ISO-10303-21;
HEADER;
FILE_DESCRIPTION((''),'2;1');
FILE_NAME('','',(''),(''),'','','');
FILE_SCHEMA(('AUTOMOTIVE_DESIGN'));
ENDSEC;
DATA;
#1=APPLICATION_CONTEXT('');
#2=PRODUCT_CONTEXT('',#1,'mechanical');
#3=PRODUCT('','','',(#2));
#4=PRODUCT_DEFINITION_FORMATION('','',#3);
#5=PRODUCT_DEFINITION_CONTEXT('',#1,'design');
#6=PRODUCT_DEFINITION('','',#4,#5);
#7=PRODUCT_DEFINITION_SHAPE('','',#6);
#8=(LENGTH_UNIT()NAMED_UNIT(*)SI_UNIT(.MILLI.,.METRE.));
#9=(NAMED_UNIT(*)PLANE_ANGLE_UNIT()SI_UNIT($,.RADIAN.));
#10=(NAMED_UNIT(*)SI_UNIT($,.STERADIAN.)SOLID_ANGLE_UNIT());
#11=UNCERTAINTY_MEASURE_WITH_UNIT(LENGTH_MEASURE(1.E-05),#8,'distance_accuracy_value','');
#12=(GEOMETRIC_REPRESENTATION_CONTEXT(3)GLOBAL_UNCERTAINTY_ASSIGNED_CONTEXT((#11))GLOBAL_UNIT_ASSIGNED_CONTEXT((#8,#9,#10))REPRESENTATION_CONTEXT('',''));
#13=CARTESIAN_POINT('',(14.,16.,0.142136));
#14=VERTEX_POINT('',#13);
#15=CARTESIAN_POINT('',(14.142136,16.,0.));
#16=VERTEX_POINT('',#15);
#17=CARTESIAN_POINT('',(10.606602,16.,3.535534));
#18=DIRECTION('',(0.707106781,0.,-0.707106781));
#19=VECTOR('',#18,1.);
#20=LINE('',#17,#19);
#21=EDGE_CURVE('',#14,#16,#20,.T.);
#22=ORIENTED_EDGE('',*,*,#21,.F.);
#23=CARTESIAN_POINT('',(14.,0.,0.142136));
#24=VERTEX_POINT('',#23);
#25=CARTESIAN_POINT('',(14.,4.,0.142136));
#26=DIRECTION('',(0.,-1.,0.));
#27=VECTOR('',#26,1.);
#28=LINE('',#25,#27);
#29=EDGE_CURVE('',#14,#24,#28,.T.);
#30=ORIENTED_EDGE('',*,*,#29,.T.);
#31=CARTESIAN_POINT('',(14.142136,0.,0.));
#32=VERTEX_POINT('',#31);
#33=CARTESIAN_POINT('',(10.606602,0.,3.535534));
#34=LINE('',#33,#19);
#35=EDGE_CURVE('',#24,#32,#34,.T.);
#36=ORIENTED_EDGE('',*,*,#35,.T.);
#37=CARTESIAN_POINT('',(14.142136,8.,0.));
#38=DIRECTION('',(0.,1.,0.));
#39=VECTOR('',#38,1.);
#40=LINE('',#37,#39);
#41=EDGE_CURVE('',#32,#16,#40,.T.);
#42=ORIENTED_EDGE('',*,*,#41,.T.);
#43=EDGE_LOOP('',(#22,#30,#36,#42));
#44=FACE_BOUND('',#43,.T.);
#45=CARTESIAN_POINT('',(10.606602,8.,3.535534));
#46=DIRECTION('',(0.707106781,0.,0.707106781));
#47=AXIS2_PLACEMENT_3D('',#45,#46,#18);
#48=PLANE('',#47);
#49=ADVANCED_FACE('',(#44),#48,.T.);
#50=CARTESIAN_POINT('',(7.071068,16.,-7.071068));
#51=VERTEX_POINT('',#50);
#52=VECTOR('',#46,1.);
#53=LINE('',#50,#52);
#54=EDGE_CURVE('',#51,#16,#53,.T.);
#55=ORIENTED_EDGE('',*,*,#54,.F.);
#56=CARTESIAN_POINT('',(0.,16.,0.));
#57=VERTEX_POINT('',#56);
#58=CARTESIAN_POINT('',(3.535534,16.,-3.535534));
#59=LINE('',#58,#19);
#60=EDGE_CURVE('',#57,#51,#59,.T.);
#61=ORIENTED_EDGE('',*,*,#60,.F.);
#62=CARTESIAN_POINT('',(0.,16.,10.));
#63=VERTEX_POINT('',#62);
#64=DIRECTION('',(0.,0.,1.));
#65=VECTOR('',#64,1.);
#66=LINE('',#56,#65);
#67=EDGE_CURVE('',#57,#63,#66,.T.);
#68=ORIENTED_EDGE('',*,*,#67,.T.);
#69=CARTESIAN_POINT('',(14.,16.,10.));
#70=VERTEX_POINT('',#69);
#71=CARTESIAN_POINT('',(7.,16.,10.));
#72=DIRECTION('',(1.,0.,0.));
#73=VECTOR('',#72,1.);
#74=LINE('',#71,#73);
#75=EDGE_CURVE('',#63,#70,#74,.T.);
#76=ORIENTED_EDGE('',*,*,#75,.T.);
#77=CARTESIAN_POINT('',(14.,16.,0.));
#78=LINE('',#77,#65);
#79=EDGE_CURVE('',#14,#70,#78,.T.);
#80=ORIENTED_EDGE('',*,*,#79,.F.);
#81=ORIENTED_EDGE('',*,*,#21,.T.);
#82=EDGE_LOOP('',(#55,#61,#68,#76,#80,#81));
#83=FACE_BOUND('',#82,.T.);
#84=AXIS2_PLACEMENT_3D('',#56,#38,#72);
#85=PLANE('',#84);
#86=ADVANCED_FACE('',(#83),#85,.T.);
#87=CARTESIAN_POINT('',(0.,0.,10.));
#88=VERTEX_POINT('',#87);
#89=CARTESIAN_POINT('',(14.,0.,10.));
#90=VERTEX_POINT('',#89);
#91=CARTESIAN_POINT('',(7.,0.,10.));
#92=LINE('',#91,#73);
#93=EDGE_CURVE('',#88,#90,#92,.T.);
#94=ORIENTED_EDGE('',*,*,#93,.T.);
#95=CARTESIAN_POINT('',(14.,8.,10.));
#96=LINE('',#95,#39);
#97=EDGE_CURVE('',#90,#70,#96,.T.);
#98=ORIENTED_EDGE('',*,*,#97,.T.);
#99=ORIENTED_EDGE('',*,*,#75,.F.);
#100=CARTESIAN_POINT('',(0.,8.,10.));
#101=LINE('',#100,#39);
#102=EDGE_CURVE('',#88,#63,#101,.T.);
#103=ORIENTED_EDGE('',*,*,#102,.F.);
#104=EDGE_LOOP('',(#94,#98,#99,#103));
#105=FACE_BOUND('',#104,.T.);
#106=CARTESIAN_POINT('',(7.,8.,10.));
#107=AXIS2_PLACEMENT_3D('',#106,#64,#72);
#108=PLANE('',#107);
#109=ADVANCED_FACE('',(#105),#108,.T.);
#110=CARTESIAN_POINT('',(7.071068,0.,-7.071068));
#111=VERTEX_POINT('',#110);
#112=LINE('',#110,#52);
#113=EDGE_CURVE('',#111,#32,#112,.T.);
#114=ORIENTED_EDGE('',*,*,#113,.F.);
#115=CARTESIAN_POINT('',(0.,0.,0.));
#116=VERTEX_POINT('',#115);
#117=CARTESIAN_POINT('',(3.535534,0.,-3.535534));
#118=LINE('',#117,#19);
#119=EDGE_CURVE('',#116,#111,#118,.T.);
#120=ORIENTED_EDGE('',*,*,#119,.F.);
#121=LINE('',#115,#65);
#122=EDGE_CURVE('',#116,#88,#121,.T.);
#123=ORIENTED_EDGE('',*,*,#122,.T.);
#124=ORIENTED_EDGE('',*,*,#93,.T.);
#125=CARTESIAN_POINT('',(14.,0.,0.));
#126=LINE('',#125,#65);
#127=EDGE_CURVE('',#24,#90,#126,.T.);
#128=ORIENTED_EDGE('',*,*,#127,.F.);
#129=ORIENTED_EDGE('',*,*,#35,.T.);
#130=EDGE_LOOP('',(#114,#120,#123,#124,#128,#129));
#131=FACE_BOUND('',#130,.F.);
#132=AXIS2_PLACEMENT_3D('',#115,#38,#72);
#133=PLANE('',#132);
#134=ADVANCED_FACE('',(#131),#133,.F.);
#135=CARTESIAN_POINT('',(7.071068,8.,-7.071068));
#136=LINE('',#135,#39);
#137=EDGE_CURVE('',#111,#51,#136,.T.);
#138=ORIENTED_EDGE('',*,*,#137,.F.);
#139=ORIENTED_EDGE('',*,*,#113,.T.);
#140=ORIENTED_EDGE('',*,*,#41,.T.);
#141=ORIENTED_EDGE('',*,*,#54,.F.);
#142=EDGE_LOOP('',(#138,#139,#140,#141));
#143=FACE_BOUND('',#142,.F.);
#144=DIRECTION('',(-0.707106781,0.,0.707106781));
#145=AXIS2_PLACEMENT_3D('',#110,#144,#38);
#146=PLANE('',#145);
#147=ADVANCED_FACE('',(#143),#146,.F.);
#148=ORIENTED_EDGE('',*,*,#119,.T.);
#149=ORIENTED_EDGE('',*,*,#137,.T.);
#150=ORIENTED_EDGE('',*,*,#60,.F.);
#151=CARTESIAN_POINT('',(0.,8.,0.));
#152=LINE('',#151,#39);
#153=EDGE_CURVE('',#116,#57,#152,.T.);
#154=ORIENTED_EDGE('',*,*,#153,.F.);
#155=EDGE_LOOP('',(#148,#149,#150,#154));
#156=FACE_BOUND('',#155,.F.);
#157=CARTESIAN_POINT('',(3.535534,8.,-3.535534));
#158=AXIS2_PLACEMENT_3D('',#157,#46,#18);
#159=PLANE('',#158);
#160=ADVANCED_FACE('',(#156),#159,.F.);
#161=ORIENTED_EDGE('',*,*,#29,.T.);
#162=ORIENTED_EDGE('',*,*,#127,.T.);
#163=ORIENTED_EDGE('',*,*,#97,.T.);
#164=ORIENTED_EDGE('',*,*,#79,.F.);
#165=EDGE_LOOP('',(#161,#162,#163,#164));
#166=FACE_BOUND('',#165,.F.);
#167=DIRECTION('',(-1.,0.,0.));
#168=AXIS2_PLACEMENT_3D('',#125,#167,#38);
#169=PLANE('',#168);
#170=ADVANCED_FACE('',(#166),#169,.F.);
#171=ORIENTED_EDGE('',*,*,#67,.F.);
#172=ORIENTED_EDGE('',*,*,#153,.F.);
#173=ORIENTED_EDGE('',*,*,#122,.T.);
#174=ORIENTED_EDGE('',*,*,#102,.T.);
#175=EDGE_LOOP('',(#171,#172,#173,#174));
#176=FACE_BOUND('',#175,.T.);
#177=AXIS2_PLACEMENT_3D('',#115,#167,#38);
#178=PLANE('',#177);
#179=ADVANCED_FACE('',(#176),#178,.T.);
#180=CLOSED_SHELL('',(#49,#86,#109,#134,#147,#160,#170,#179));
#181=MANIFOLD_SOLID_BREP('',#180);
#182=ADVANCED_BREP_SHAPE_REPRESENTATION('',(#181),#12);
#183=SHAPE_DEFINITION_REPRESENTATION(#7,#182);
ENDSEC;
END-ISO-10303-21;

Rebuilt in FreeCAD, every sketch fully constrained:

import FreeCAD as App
import Part
import Sketcher
Q = App.Units.Quantity

doc = App.newDocument("Part")
body = doc.addObject("PartDesign::Body", "Body")

# Sketch on XY plane
sketch1 = doc.addObject("Sketcher::SketchObject", "Sketch")
body.addObject(sketch1)
sketch1.AttachmentSupport = (doc.XY_Plane, [""])
sketch1.MapMode = "FlatFace"
sketch1.addGeometry([
    Part.LineSegment(App.Vector(0, 16, 0), App.Vector(0, 0, 0)),
    Part.LineSegment(App.Vector(0, 0, 0), App.Vector(14, 0, 0)),
    Part.LineSegment(App.Vector(14, 0, 0), App.Vector(14, 16, 0)),
    Part.LineSegment(App.Vector(14, 16, 0), App.Vector(0, 16, 0)),
], False)
sketch1.addConstraint([
    Sketcher.Constraint("Coincident", 0, 2, 1, 1),
    Sketcher.Constraint("Coincident", 1, 2, 2, 1),
    Sketcher.Constraint("Coincident", 2, 2, 3, 1),
    Sketcher.Constraint("Coincident", 3, 2, 0, 1),
    Sketcher.Constraint("Vertical", 0),
    Sketcher.Constraint("Horizontal", 1),
    Sketcher.Constraint("Vertical", 2),
    Sketcher.Constraint("Horizontal", 3),
    Sketcher.Constraint("Coincident", 0, 2, -1, 1),
    Sketcher.Constraint("DistanceX", 1, 1, 1, 2, Q("14 mm")),
    Sketcher.Constraint("DistanceY", 0, 2, 0, 1, Q("16 mm")),
])
pad1 = doc.addObject("PartDesign::Pad", "Pad")
body.addObject(pad1)
pad1.Profile = sketch1
pad1.Length = 10
body2 = doc.addObject("PartDesign::Body", "Body001")

# Sketch on XY plane
sketch2 = doc.addObject("Sketcher::SketchObject", "Sketch001")
body2.addObject(sketch2)
sketch2.AttachmentSupport = (doc.getObject("XY_Plane001"), [""])
sketch2.MapMode = "FlatFace"
sketch2.addGeometry([
    Part.LineSegment(App.Vector(0, 16, 0), App.Vector(0, 0, 0)),
    Part.LineSegment(App.Vector(0, 0, 0), App.Vector(10, 0, 0)),
    Part.LineSegment(App.Vector(10, 0, 0), App.Vector(10, 16, 0)),
    Part.LineSegment(App.Vector(10, 16, 0), App.Vector(0, 16, 0)),
], False)
sketch2.addConstraint([
    Sketcher.Constraint("Coincident", 0, 2, 1, 1),
    Sketcher.Constraint("Coincident", 1, 2, 2, 1),
    Sketcher.Constraint("Coincident", 2, 2, 3, 1),
    Sketcher.Constraint("Coincident", 3, 2, 0, 1),
    Sketcher.Constraint("Vertical", 0),
    Sketcher.Constraint("Horizontal", 1),
    Sketcher.Constraint("Vertical", 2),
    Sketcher.Constraint("Horizontal", 3),
    Sketcher.Constraint("Coincident", 0, 2, -1, 1),
    Sketcher.Constraint("DistanceX", 1, 1, 1, 2, Q("10 mm")),
    Sketcher.Constraint("DistanceY", 0, 2, 0, 1, Q("16 mm")),
])
pad2 = doc.addObject("PartDesign::Pad", "Pad001")
body2.addObject(pad2)
pad2.Profile = sketch2
pad2.Length = 10
body3 = doc.addObject("PartDesign::Body", "Body002")
doc.recompute()

body2.Placement = App.Placement(App.Vector(0, 0, 0), App.Rotation(App.Vector(0, 1, 0), 45))
boolean = doc.addObject("PartDesign::Boolean", "Boolean")
body3.addObject(boolean)
boolean.Type = "Fuse"
boolean.addObjects([body2])
doc.recompute()

boolean2 = doc.addObject("PartDesign::Boolean", "Boolean001")
body3.addObject(boolean2)
boolean2.Type = "Fuse"
boolean2.addObjects([body])

doc.recompute()
